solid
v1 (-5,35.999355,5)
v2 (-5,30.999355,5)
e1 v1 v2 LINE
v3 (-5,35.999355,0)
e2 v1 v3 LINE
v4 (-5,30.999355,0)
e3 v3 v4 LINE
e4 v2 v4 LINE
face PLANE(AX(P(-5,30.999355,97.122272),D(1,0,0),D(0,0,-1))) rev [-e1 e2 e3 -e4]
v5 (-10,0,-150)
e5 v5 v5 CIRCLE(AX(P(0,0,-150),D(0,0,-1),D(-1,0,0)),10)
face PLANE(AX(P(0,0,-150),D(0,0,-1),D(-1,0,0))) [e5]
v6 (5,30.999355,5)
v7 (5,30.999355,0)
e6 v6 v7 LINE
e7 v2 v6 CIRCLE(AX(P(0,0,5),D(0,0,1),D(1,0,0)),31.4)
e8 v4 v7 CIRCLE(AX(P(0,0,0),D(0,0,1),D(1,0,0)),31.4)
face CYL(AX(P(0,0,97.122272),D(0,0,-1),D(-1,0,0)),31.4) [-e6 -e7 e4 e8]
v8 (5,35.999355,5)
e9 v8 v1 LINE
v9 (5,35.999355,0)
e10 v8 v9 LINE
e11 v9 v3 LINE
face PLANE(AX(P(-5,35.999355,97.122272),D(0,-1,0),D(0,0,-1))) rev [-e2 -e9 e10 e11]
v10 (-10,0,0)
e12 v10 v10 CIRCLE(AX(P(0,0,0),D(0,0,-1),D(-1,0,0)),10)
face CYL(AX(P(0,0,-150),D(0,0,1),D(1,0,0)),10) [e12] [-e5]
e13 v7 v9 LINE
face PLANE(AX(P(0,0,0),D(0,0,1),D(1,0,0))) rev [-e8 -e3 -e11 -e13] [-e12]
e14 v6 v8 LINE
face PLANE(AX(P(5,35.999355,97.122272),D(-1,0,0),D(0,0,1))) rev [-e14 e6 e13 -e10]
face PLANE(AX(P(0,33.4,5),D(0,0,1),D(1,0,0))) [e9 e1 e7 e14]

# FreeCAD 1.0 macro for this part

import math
import FreeCAD as App
import Part
import Sketcher
from FreeCAD import Vector

doc = App.newDocument("Part")
body = doc.addObject("PartDesign::Body", "Body")

# Sketch on XY plane
sketch1 = doc.addObject("Sketcher::SketchObject", "Sketch")
body.addObject(sketch1)
sketch1.AttachmentSupport = (doc.XY_Plane, [""])
sketch1.MapMode = "FlatFace"
sketch1.addGeometry([
    Part.LineSegment(Vector(-5, 36, 0), Vector(-5, 31, 0)),
    Part.ArcOfCircle(Part.Circle(Vector(0, 0, 0), Vector(0, 0, 1), 31), math.radians(99), math.radians(441)),
    Part.LineSegment(Vector(5, 31, 0), Vector(5, 36, 0)),
    Part.LineSegment(Vector(5, 36, 0), Vector(-5, 36, 0)),
], False)
sketch1.addConstraint([
    Sketcher.Constraint("Coincident", 0, 2, 1, 1),
    Sketcher.Constraint("Coincident", 1, 2, 2, 1),
    Sketcher.Constraint("Coincident", 2, 2, 3, 1),
    Sketcher.Constraint("Coincident", 3, 2, 0, 1),
    Sketcher.Constraint("Vertical", 0),
    Sketcher.Constraint("Vertical", 2),
    Sketcher.Constraint("Horizontal", 3),
    Sketcher.Constraint("Coincident", 1, 3, -1, 1),
    Sketcher.Constraint("Horizontal", 0, 2, 1, 2),
    Sketcher.Constraint("Radius", 1, 31.4),
    Sketcher.Constraint("DistanceX", 3, 2, 3, 1, 10.0),
    Sketcher.Constraint("DistanceY", 0, 2, 0, 1, 5.0),
])
pad1 = doc.addObject("PartDesign::Pad", "Pad")
body.addObject(pad1)
pad1.Profile = sketch1
pad1.Length = 5

# Sketch on XY plane
sketch2 = doc.addObject("Sketcher::SketchObject", "Sketch001")
body.addObject(sketch2)
sketch2.AttachmentSupport = (doc.XY_Plane, [""])
sketch2.MapMode = "FlatFace"
sketch2.addGeometry(Part.Circle(Vector(0, 0, 0), Vector(0, 0, 1), 10), False)
sketch2.addConstraint([
    Sketcher.Constraint("Coincident", 0, 3, -1, 1),
    Sketcher.Constraint("Diameter", 0, 20.0),
])
pad2 = doc.addObject("PartDesign::Pad", "Pad001")
body.addObject(pad2)
pad2.Profile = sketch2
pad2.Length = 150
pad2.Reversed = True

doc.recompute()
